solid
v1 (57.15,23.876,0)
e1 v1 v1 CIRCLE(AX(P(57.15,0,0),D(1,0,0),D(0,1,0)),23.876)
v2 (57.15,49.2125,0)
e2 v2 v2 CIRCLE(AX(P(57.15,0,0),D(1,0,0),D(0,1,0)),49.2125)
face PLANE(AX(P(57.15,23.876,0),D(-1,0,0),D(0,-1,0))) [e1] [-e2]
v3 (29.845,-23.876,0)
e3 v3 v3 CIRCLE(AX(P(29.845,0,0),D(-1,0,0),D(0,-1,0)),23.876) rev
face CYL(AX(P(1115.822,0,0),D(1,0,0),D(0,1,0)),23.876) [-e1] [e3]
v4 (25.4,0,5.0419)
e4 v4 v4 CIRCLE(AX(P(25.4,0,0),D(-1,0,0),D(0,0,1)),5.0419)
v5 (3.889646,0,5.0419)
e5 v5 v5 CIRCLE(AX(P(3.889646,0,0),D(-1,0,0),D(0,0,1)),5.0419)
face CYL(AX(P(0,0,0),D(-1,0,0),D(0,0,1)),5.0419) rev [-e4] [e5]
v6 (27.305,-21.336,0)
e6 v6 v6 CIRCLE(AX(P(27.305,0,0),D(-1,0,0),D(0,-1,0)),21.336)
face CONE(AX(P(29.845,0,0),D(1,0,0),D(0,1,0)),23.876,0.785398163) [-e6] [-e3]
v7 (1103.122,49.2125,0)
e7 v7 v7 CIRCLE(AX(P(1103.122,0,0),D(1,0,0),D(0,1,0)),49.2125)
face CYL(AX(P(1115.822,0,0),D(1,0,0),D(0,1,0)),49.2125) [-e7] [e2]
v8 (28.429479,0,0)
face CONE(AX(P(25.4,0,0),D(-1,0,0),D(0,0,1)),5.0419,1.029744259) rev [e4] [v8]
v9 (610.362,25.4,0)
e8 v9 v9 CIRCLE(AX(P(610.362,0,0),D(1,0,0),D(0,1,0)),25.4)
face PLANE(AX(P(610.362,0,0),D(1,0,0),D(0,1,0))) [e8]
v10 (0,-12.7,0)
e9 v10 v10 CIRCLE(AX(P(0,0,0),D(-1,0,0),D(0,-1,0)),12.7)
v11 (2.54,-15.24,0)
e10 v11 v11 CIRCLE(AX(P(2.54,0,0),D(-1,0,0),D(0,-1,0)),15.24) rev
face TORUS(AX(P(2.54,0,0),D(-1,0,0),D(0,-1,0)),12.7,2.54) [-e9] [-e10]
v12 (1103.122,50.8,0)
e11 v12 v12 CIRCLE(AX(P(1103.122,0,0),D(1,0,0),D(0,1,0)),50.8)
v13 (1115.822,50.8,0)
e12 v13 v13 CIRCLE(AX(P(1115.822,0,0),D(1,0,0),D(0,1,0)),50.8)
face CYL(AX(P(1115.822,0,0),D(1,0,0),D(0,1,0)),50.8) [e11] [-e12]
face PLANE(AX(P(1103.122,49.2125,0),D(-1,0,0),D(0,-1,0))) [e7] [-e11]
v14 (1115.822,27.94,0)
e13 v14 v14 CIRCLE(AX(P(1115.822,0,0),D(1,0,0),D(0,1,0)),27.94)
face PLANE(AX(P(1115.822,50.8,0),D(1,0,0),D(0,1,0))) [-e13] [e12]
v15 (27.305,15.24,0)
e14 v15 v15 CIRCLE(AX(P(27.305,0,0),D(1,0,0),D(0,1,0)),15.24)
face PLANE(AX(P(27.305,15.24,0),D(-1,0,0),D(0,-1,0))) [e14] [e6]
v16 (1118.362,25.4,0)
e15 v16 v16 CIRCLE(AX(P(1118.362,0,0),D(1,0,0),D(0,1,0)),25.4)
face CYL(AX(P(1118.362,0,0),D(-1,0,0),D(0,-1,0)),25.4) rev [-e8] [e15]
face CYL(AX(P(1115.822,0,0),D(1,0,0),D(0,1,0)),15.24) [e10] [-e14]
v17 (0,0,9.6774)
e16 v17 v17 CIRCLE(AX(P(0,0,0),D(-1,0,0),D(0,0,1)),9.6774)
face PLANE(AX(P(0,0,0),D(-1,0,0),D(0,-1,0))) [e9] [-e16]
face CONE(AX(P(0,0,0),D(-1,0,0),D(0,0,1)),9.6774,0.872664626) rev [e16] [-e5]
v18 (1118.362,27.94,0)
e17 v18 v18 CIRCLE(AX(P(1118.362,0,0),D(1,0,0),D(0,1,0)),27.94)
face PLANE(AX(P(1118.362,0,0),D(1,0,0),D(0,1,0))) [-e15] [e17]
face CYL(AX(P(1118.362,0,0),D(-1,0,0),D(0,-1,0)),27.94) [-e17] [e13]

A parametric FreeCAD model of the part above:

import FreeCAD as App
import Part
import Sketcher

V = App.Vector
Q = App.Units.Quantity


def edges_at(feature, points):
    """Names of the edges that pass closest to the given points."""
    edges = feature.Shape.Edges
    near = lambda p: min(range(len(edges)), key=lambda i: edges[i].distToShape(Part.Vertex(*p))[0])
    return sorted({f"Edge{near(p) + 1}" for p in points})


def add_polygon(sketch, points):
    """Adds a closed chain of lines whose ends are joined by coincident constraints."""
    first, n = sketch.GeometryCount, len(points)
    for a, b in zip(points, points[1:] + points[:1]):
        sketch.addGeometry(Part.LineSegment(App.Vector(*a, 0), App.Vector(*b, 0)), False)
    for i in range(n):
        sketch.addConstraint(Sketcher.Constraint("Coincident", first + i, 2, first + (i + 1) % n, 1))

doc = App.newDocument("Part")
body = doc.addObject("PartDesign::Body", "Body")

# Sketch on XY plane
sketch1 = doc.addObject("Sketcher::SketchObject", "Sketch")
body.addObject(sketch1)
sketch1.AttachmentSupport = (doc.XY_Plane, [""])
sketch1.MapMode = "FlatFace"
add_polygon(sketch1, [(0, 15.2), (0, 0), (1115.8, 0), (1115.8, 50.8), (1103.1, 50.8), (1103.1, 49.2), (57.1, 49.2), (57.1, 23.9), (27.3, 23.9), (27.3, 15.2)])  # lines 0-9
sketch1.addConstraint([
    Sketcher.Constraint("Vertical", 0),
    Sketcher.Constraint("Horizontal", 1),
    Sketcher.Constraint("Vertical", 2),
    Sketcher.Constraint("Horizontal", 3),
    Sketcher.Constraint("Vertical", 4),
    Sketcher.Constraint("Horizontal", 5),
    Sketcher.Constraint("Vertical", 6),
    Sketcher.Constraint("Horizontal", 7),
    Sketcher.Constraint("Vertical", 8),
    Sketcher.Constraint("Horizontal", 9),
    Sketcher.Constraint("Coincident", 0, 2, -1, 1),
    Sketcher.Constraint("DistanceY", 2, 1, 2, 2, Q("2 in")),
    Sketcher.Constraint("DistanceX", 3, 2, 3, 1, Q("0.5 in")),
    Sketcher.Constraint("DistanceY", 0, 2, 0, 1, Q("0.6 in")),
    Sketcher.Constraint("DistanceX", 1, 1, 1, 2, Q("43.93 in")),
    Sketcher.Constraint("DistanceX", 5, 2, 5, 1, Q("41.18 in")),
    Sketcher.Constraint("DistanceY", 8, 2, 8, 1, Q("0.34 in")),
    Sketcher.Constraint("DistanceX", 7, 2, 7, 1, Q("1.175 in")),
    Sketcher.Constraint("DistanceY", 4, 2, 4, 1, Q("0.0625 in")),
])
revolution = doc.addObject("PartDesign::Revolution", "Revolution")
body.addObject(revolution)
revolution.Profile = sketch1
revolution.ReferenceAxis = (sketch1, ["H_Axis"])
revolution.Angle = 360

# Sketch on YZ plane
sketch2 = doc.addObject("Sketcher::SketchObject", "Sketch001")
body.addObject(sketch2)
sketch2.AttachmentSupport = (doc.YZ_Plane, [""])
sketch2.MapMode = "FlatFace"
sketch2.addGeometry(Part.Circle(V(0, 0, 0), V(0, 0, 1), 5), False)
sketch2.addConstraint([
    Sketcher.Constraint("Coincident", 0, 3, -1, 1),
    Sketcher.Constraint("Diameter", 0, Q("0.397 in")),
])
doc.recompute()
hole = doc.addObject("PartDesign::Hole", "Hole")
body.addObject(hole)
hole.Profile = sketch2
hole.ThreadType = "None"
hole.Diameter = Q("0.397 in")
hole.DepthType = "Dimension"
hole.Depth = Q("1 in")
hole.DrillPoint = "Angled"
hole.DrillPointAngle = 118
hole.HoleCutType = "Countersink"
hole.HoleCutDiameter = Q("0.762 in")
hole.HoleCutCountersinkAngle = 100
hole.Reversed = True
doc.recompute()

fillet = doc.addObject("PartDesign::Fillet", "Fillet")
body.addObject(fillet)
fillet.Base = (hole, edges_at(hole, [(0, -15.24, 0)]))
fillet.Radius = Q("0.1 in")
doc.recompute()

chamfer = doc.addObject("PartDesign::Chamfer", "Chamfer")
body.addObject(chamfer)
chamfer.Base = (fillet, edges_at(fillet, [(27.305, -23.876, 0)]))
chamfer.Size = Q("0.1 in")

# Sketch on YZ plane
sketch3 = doc.addObject("Sketcher::SketchObject", "Sketch002")
body.addObject(sketch3)
sketch3.AttachmentSupport = (doc.YZ_Plane, [""])
sketch3.MapMode = "FlatFace"
sketch3.AttachmentOffset = App.Placement(V(0, 0, 43.93 * 25.4), App.Rotation())
sketch3.addGeometry([
    Part.Circle(V(0, 0, 0), V(0, 0, 1), 28),
    Part.Circle(V(0, 0, 0), V(0, 0, 1), 25),
], False)
sketch3.addConstraint([
    Sketcher.Constraint("Coincident", 0, 3, -1, 1),
    Sketcher.Constraint("Coincident", 1, 3, -1, 1),
    Sketcher.Constraint("Diameter", 1, Q("2 in")),
    Sketcher.Constraint("Diameter", 0, Q("2.2 in")),
])
pad1 = doc.addObject("PartDesign::Pad", "Pad")
body.addObject(pad1)
pad1.Profile = sketch3
pad1.Length = Q("0.1 in")

# Sketch on YZ plane
sketch4 = doc.addObject("Sketcher::SketchObject", "Sketch003")
body.addObject(sketch4)
sketch4.AttachmentSupport = (doc.YZ_Plane, [""])
sketch4.MapMode = "FlatFace"
sketch4.AttachmentOffset = App.Placement(V(0, 0, 24.03 * 25.4), App.Rotation())
sketch4.addGeometry(Part.Circle(V(0, 0, 0), V(0, 0, 1), 25), False)
sketch4.addConstraint([
    Sketcher.Constraint("Coincident", 0, 3, -1, 1),
    Sketcher.Constraint("Diameter", 0, Q("2 in")),
])
pocket1 = doc.addObject("PartDesign::Pocket", "Pocket")
body.addObject(pocket1)
pocket1.Profile = sketch4
pocket1.Length = Q("20 in")
pocket1.Reversed = True

doc.recompute()
